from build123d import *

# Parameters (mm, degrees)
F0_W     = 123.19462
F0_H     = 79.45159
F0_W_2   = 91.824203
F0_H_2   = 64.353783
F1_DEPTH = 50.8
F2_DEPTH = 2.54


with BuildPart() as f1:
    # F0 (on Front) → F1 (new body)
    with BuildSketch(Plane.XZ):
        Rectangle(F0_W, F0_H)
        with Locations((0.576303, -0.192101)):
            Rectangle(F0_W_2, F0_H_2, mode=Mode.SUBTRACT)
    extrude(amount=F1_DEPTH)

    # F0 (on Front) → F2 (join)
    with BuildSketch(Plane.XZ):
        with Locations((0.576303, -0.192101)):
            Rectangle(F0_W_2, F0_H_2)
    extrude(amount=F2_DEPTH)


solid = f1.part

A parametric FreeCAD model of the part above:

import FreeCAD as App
import Part
import Sketcher


def add_polygon(sketch, points):
    """Adds a closed chain of lines whose ends are joined by coincident constraints."""
    first, n = sketch.GeometryCount, len(points)
    for a, b in zip(points, points[1:] + points[:1]):
        sketch.addGeometry(Part.LineSegment(App.Vector(*a, 0), App.Vector(*b, 0)), False)
    for i in range(n):
        sketch.addConstraint(Sketcher.Constraint("Coincident", first + i, 2, first + (i + 1) % n, 1))

doc = App.newDocument("Part")
params = doc.addObject("Spreadsheet::Sheet", "Params")
for row, (alias, value) in enumerate([
    ("pad1_length", "2 in"),
    ("pad2_length", "0.1 in"),
], start=1):
    params.set(f"A{row}", alias)
    params.set(f"B{row}", "=" + value)
    params.setAlias(f"B{row}", alias)

body = doc.addObject("PartDesign::Body", "Body")

# Sketch on XZ plane
sketch1 = body.newObject("Sketcher::SketchObject", "Sketch")
sketch1.AttachmentSupport = (doc.getObject("XZ_Plane"), [""])
sketch1.MapMode = "FlatFace"
add_polygon(sketch1, [(-62, 40), (-62, -40), (62, -40), (62, 40)])  # lines 0-3
add_polygon(sketch1, [(46, -32), (-45, -32), (-45, 32), (46, 32)])  # lines 4-7
sketch1.addConstraint(Sketcher.Constraint("Vertical", 0))
sketch1.addConstraint(Sketcher.Constraint("Horizontal", 1))
sketch1.addConstraint(Sketcher.Constraint("Vertical", 2))
sketch1.addConstraint(Sketcher.Constraint("Horizontal", 3))
sketch1.addConstraint(Sketcher.Constraint("Horizontal", 4))
sketch1.addConstraint(Sketcher.Constraint("Vertical", 5))
sketch1.addConstraint(Sketcher.Constraint("Horizontal", 6))
sketch1.addConstraint(Sketcher.Constraint("Vertical", 7))
sketch1.addConstraint(Sketcher.Constraint("Symmetric", 0, 2, 2, 2, -1, 1))
sketch1.addConstraint(Sketcher.Constraint("DistanceX", 1, 1, 1, 2, 123.19462))
sketch1.addConstraint(Sketcher.Constraint("DistanceY", 0, 2, 0, 1, 79.45159))
sketch1.addConstraint(Sketcher.Constraint("DistanceX", 4, 2, -1, 1, 45.335799))
sketch1.addConstraint(Sketcher.Constraint("DistanceX", 4, 2, 4, 1, 91.824203))
sketch1.addConstraint(Sketcher.Constraint("DistanceY", 5, 1, 5, 2, 64.353783))
sketch1.addConstraint(Sketcher.Constraint("DistanceY", -1, 1, 5, 2, 31.98479))
pad1 = body.newObject("PartDesign::Pad", "Pad")
pad1.Profile = sketch1
pad1.setExpression("Length", "Params.pad1_length")

# Sketch on XZ plane
sketch2 = body.newObject("Sketcher::SketchObject", "Sketch001")
sketch2.AttachmentSupport = (doc.getObject("XZ_Plane"), [""])
sketch2.MapMode = "FlatFace"
add_polygon(sketch2, [(-45, 32), (-45, -32), (46, -32), (46, 32)])  # lines 0-3
sketch2.addConstraint(Sketcher.Constraint("Vertical", 0))
sketch2.addConstraint(Sketcher.Constraint("Horizontal", 1))
sketch2.addConstraint(Sketcher.Constraint("Vertical", 2))
sketch2.addConstraint(Sketcher.Constraint("Horizontal", 3))
sketch2.addConstraint(Sketcher.Constraint("DistanceX", 0, 2, -1, 1, 45.335799))
sketch2.addConstraint(Sketcher.Constraint("DistanceX", 1, 1, 1, 2, 91.824203))
sketch2.addConstraint(Sketcher.Constraint("DistanceY", 0, 2, 0, 1, 64.353783))
sketch2.addConstraint(Sketcher.Constraint("DistanceY", -1, 1, 2, 2, 31.98479))
pad2 = body.newObject("PartDesign::Pad", "Pad001")
pad2.Profile = sketch2
pad2.setExpression("Length", "Params.pad2_length")

doc.recompute()
